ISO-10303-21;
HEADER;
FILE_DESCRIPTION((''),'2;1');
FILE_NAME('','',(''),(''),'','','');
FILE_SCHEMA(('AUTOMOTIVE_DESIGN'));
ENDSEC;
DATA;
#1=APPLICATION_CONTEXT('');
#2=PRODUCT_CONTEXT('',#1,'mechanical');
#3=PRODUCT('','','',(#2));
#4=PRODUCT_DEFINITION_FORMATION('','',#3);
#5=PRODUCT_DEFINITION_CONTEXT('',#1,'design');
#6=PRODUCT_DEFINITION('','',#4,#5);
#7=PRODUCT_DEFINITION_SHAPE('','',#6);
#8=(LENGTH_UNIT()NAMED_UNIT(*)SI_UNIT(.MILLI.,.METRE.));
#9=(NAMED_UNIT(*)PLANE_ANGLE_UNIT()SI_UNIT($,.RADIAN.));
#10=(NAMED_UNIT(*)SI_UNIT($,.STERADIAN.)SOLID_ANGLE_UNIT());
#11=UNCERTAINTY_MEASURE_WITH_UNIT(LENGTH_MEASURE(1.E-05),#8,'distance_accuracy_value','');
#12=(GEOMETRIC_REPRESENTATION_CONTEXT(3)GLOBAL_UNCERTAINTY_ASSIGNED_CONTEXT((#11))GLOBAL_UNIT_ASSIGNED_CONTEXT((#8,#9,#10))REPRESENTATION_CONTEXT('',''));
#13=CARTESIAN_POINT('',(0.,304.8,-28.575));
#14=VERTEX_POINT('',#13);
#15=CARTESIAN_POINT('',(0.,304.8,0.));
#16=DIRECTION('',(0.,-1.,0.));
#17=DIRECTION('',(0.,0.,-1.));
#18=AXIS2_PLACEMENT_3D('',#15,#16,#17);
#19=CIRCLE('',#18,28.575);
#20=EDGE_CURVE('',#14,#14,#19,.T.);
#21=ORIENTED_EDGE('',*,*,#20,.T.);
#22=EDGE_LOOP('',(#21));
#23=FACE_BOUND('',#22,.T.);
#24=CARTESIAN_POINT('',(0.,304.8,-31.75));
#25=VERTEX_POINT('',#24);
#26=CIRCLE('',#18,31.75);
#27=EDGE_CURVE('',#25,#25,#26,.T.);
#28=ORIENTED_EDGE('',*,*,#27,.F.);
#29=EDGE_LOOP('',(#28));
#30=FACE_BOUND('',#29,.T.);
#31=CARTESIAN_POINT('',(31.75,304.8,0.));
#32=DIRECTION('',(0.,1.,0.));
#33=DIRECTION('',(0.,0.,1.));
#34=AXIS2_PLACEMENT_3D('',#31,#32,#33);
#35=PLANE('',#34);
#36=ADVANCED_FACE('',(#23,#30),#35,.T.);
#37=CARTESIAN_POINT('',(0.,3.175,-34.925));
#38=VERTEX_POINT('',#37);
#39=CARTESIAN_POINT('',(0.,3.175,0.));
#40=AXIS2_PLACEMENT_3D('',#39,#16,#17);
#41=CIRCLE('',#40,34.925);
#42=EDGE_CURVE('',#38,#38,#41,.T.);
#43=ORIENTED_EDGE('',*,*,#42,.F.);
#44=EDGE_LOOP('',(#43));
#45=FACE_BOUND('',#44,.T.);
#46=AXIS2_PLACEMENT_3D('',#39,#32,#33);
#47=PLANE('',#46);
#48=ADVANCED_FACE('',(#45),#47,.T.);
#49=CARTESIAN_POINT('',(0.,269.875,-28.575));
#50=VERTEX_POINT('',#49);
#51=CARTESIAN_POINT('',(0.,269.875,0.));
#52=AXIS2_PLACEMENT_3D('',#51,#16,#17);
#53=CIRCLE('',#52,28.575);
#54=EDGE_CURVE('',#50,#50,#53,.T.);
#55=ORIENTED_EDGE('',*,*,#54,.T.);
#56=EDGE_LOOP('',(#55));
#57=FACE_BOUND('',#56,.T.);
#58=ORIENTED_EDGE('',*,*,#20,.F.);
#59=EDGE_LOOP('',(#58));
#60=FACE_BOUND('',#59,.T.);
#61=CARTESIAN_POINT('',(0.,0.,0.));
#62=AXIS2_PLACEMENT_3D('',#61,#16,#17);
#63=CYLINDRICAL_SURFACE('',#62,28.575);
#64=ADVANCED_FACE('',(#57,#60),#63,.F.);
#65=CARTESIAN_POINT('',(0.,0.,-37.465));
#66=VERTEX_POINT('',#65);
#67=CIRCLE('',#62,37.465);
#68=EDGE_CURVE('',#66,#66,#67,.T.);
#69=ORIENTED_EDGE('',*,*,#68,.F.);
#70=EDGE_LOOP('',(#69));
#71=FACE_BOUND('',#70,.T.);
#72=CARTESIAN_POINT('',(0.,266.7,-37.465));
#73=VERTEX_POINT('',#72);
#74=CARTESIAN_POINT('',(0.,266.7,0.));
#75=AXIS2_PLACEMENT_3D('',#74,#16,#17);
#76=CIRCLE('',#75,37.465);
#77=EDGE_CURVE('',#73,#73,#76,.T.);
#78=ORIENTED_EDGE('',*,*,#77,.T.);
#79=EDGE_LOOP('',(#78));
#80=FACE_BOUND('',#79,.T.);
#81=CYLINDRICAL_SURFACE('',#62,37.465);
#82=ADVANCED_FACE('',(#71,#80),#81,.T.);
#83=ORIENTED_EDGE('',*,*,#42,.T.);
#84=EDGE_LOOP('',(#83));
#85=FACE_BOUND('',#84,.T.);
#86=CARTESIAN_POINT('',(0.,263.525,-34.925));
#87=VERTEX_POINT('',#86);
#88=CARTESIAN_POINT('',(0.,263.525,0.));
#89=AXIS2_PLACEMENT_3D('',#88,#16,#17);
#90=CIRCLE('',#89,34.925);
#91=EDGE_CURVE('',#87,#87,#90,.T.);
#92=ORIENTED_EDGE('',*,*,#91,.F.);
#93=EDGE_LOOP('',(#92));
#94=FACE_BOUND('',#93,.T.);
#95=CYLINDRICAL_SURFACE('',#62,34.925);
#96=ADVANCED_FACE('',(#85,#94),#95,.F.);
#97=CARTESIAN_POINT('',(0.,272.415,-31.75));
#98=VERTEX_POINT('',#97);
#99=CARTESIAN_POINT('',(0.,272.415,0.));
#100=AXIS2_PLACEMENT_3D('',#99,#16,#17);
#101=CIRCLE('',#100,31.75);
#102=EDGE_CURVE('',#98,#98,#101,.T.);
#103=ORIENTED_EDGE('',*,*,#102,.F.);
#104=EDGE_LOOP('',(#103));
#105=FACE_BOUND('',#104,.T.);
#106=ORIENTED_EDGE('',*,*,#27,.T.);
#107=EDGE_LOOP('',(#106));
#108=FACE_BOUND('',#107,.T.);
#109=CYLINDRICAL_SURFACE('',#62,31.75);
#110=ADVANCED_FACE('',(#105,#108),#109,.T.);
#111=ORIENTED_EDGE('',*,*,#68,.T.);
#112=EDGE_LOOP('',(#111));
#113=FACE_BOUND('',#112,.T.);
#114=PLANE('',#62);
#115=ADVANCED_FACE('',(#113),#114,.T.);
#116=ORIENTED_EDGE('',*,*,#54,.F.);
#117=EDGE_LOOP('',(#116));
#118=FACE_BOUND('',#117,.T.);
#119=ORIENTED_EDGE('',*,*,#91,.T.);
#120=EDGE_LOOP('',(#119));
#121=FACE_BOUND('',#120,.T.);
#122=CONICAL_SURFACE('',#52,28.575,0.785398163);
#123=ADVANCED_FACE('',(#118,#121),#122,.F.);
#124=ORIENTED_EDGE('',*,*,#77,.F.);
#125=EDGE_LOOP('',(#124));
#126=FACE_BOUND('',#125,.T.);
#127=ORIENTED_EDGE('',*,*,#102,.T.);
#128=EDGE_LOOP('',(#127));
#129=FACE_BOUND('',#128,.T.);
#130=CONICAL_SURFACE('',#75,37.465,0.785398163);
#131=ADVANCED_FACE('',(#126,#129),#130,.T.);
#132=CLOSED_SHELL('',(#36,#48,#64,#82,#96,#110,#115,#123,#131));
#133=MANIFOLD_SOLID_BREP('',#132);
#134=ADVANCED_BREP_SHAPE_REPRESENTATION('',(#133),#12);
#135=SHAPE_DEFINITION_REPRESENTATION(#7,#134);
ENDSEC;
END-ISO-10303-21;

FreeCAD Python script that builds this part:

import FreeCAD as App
import Part
import Sketcher

V = App.Vector
Q = App.Units.Quantity

doc = App.newDocument("Part")
body = doc.addObject("PartDesign::Body", "Body")

# Sketch on XY plane
sketch1 = body.newObject("Sketcher::SketchObject", "Sketch")
sketch1.AttachmentSupport = (doc.getObject("XY_Plane"), [""])
sketch1.MapMode = "FlatFace"
sketch1.addGeometry([
    Part.LineSegment(V(0, 0, 0), V(37.5, 0, 0)),  # 0
    Part.LineSegment(V(37.5, 0, 0), V(37.5, 266.7, 0)),  # 1
    Part.LineSegment(V(37.5, 266.7, 0), V(31.8, 272.4, 0)),  # 2
    Part.LineSegment(V(31.8, 272.4, 0), V(31.8, 304.8, 0)),  # 3
    Part.LineSegment(V(31.8, 304.8, 0), V(28.6, 304.8, 0)),  # 4
    Part.LineSegment(V(28.6, 304.8, 0), V(28.6, 269.9, 0)),  # 5
    Part.LineSegment(V(28.6, 269.9, 0), V(34.9, 263.5, 0)),  # 6
    Part.LineSegment(V(34.9, 263.5, 0), V(34.9, 3.2, 0)),  # 7
    Part.LineSegment(V(34.9, 3.2, 0), V(0, 3.2, 0)),  # 8
    Part.LineSegment(V(0, 3.2, 0), V(0, 0, 0)),  # 9
], False)
sketch1.addConstraint([
    Sketcher.Constraint("Coincident", 0, 2, 1, 1),
    Sketcher.Constraint("Coincident", 1, 2, 2, 1),
    Sketcher.Constraint("Coincident", 2, 2, 3, 1),
    Sketcher.Constraint("Coincident", 3, 2, 4, 1),
    Sketcher.Constraint("Coincident", 4, 2, 5, 1),
    Sketcher.Constraint("Coincident", 5, 2, 6, 1),
    Sketcher.Constraint("Coincident", 6, 2, 7, 1),
    Sketcher.Constraint("Coincident", 7, 2, 8, 1),
    Sketcher.Constraint("Coincident", 8, 2, 9, 1),
    Sketcher.Constraint("Coincident", 9, 2, 0, 1),
    Sketcher.Constraint("Horizontal", 0),
    Sketcher.Constraint("Vertical", 1),
    Sketcher.Constraint("Vertical", 3),
    Sketcher.Constraint("Horizontal", 4),
    Sketcher.Constraint("Vertical", 5),
    Sketcher.Constraint("Vertical", 7),
    Sketcher.Constraint("Horizontal", 8),
    Sketcher.Constraint("Vertical", 9),
    Sketcher.Constraint("Coincident", 9, 2, -1, 1),
    Sketcher.Constraint("Parallel", 2, 6),
    Sketcher.Constraint("Equal", 8, 5),
    Sketcher.Constraint("Equal", 4, 9),
    Sketcher.Constraint("DistanceY", 1, 1, 1, 2, Q("10.5 in")),
    Sketcher.Constraint("DistanceY", -1, 1, 3, 2, Q("12 in")),
    Sketcher.Constraint("Angle", 2, Q("135 deg")),
    Sketcher.Constraint("DistanceY", 7, 2, 7, 1, Q("10.25 in")),
    Sketcher.Constraint("DistanceY", 5, 2, 2, 2, Q("0.1 in")),
    Sketcher.Constraint("DistanceX", 6, 2, 1, 2, Q("0.1 in")),
    Sketcher.Constraint("DistanceY", 7, 2, 5, 2, Q("10.5 in")),
])
revolution = body.newObject("PartDesign::Revolution", "Revolution")
revolution.Profile = sketch1
revolution.ReferenceAxis = (sketch1, ["V_Axis"])
revolution.Angle = 360

doc.recompute()
